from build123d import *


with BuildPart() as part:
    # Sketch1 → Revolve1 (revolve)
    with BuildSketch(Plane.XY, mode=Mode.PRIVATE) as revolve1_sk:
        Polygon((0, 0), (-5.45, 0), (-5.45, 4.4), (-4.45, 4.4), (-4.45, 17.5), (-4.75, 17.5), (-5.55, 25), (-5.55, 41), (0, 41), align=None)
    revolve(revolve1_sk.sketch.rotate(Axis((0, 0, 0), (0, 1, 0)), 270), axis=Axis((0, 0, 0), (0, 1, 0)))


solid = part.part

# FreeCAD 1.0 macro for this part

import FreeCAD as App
import Part
import Sketcher

doc = App.newDocument("Part")
params = doc.addObject("Spreadsheet::Sheet", "Params")
for row, (alias, value) in enumerate([
    ("sketch1_width", "1 mm"),
    ("sketch1_height", "41 mm"),
    ("sketch1_height2", "16 mm"),
    ("sketch1_width2", "0.3 mm"),
    ("sketch1_height3", "13.1 mm"),
    ("revolution_angle", "360 deg"),
], start=1):
    params.set(f"A{row}", alias)
    params.set(f"B{row}", "=" + value)
    params.setAlias(f"B{row}", alias)

body = doc.addObject("PartDesign::Body", "Body")

sketch1 = body.newObject("Sketcher::SketchObject", "Sketch")
sketch1.AttachmentSupport = (doc.getObject("XY_Plane"), [""])
sketch1.MapMode = "FlatFace"
sketch1.addGeometry([
    Part.LineSegment(App.Vector(-5.45, 0, 0), App.Vector(0, 0, 0)),
    Part.LineSegment(App.Vector(0, 0, 0), App.Vector(0, 41, 0)),
    Part.LineSegment(App.Vector(0, 41, 0), App.Vector(-5.55, 41, 0)),
    Part.LineSegment(App.Vector(-5.55, 41, 0), App.Vector(-5.55, 25, 0)),
    Part.LineSegment(App.Vector(-5.55, 25, 0), App.Vector(-4.75, 17.5, 0)),
    Part.LineSegment(App.Vector(-4.75, 17.5, 0), App.Vector(-4.45, 17.5, 0)),
    Part.LineSegment(App.Vector(-4.45, 17.5, 0), App.Vector(-4.45, 4.4, 0)),
    Part.LineSegment(App.Vector(-4.45, 4.4, 0), App.Vector(-5.45, 4.4, 0)),
    Part.LineSegment(App.Vector(-5.45, 4.4, 0), App.Vector(-5.45, 0, 0)),
], False)
sketch1.addConstraint([
    Sketcher.Constraint("Coincident", 0, 2, 1, 1),
    Sketcher.Constraint("Coincident", 1, 2, 2, 1),
    Sketcher.Constraint("Coincident", 2, 2, 3, 1),
    Sketcher.Constraint("Coincident", 3, 2, 4, 1),
    Sketcher.Constraint("Coincident", 4, 2, 5, 1),
    Sketcher.Constraint("Coincident", 5, 2, 6, 1),
    Sketcher.Constraint("Coincident", 6, 2, 7, 1),
    Sketcher.Constraint("Coincident", 7, 2, 8, 1),
    Sketcher.Constraint("Coincident", 8, 2, 0, 1),
    Sketcher.Constraint("Horizontal", 0),
    Sketcher.Constraint("Vertical", 1),
    Sketcher.Constraint("Horizontal", 2),
    Sketcher.Constraint("Vertical", 3),
    Sketcher.Constraint("Horizontal", 5),
    Sketcher.Constraint("Vertical", 6),
    Sketcher.Constraint("Horizontal", 7),
    Sketcher.Constraint("Vertical", 8),
    Sketcher.Constraint("Coincident", 0, 2, -1, 1),
    Sketcher.Constraint("DistanceX", 7, 2, 7, 1, 1.0),
    Sketcher.Constraint("DistanceY", 1, 1, 1, 2, 41.0),
    Sketcher.Constraint("DistanceY", 3, 2, 3, 1, 16.0),
    Sketcher.Constraint("DistanceX", 5, 1, 5, 2, 0.3),
    Sketcher.Constraint("DistanceY", 6, 2, 6, 1, 13.1),
    Sketcher.Constraint("DistanceY", 8, 2, 8, 1, 4.4),
    Sketcher.Constraint("DistanceX", 0, 1, 0, 2, 5.45),
    Sketcher.Constraint("DistanceX", 2, 2, 2, 1, 5.55),
])
sketch1.setExpression("Constraints[18]", "Params.sketch1_width")
sketch1.setExpression("Constraints[19]", "Params.sketch1_height")
sketch1.setExpression("Constraints[20]", "Params.sketch1_height2")
sketch1.setExpression("Constraints[21]", "Params.sketch1_width2")
sketch1.setExpression("Constraints[22]", "Params.sketch1_height3")
revolution = body.newObject("PartDesign::Revolution", "Revolution")
revolution.Profile = sketch1
revolution.ReferenceAxis = (sketch1, ["V_Axis"])
revolution.setExpression("Angle", "Params.revolution_angle")

doc.recompute()
